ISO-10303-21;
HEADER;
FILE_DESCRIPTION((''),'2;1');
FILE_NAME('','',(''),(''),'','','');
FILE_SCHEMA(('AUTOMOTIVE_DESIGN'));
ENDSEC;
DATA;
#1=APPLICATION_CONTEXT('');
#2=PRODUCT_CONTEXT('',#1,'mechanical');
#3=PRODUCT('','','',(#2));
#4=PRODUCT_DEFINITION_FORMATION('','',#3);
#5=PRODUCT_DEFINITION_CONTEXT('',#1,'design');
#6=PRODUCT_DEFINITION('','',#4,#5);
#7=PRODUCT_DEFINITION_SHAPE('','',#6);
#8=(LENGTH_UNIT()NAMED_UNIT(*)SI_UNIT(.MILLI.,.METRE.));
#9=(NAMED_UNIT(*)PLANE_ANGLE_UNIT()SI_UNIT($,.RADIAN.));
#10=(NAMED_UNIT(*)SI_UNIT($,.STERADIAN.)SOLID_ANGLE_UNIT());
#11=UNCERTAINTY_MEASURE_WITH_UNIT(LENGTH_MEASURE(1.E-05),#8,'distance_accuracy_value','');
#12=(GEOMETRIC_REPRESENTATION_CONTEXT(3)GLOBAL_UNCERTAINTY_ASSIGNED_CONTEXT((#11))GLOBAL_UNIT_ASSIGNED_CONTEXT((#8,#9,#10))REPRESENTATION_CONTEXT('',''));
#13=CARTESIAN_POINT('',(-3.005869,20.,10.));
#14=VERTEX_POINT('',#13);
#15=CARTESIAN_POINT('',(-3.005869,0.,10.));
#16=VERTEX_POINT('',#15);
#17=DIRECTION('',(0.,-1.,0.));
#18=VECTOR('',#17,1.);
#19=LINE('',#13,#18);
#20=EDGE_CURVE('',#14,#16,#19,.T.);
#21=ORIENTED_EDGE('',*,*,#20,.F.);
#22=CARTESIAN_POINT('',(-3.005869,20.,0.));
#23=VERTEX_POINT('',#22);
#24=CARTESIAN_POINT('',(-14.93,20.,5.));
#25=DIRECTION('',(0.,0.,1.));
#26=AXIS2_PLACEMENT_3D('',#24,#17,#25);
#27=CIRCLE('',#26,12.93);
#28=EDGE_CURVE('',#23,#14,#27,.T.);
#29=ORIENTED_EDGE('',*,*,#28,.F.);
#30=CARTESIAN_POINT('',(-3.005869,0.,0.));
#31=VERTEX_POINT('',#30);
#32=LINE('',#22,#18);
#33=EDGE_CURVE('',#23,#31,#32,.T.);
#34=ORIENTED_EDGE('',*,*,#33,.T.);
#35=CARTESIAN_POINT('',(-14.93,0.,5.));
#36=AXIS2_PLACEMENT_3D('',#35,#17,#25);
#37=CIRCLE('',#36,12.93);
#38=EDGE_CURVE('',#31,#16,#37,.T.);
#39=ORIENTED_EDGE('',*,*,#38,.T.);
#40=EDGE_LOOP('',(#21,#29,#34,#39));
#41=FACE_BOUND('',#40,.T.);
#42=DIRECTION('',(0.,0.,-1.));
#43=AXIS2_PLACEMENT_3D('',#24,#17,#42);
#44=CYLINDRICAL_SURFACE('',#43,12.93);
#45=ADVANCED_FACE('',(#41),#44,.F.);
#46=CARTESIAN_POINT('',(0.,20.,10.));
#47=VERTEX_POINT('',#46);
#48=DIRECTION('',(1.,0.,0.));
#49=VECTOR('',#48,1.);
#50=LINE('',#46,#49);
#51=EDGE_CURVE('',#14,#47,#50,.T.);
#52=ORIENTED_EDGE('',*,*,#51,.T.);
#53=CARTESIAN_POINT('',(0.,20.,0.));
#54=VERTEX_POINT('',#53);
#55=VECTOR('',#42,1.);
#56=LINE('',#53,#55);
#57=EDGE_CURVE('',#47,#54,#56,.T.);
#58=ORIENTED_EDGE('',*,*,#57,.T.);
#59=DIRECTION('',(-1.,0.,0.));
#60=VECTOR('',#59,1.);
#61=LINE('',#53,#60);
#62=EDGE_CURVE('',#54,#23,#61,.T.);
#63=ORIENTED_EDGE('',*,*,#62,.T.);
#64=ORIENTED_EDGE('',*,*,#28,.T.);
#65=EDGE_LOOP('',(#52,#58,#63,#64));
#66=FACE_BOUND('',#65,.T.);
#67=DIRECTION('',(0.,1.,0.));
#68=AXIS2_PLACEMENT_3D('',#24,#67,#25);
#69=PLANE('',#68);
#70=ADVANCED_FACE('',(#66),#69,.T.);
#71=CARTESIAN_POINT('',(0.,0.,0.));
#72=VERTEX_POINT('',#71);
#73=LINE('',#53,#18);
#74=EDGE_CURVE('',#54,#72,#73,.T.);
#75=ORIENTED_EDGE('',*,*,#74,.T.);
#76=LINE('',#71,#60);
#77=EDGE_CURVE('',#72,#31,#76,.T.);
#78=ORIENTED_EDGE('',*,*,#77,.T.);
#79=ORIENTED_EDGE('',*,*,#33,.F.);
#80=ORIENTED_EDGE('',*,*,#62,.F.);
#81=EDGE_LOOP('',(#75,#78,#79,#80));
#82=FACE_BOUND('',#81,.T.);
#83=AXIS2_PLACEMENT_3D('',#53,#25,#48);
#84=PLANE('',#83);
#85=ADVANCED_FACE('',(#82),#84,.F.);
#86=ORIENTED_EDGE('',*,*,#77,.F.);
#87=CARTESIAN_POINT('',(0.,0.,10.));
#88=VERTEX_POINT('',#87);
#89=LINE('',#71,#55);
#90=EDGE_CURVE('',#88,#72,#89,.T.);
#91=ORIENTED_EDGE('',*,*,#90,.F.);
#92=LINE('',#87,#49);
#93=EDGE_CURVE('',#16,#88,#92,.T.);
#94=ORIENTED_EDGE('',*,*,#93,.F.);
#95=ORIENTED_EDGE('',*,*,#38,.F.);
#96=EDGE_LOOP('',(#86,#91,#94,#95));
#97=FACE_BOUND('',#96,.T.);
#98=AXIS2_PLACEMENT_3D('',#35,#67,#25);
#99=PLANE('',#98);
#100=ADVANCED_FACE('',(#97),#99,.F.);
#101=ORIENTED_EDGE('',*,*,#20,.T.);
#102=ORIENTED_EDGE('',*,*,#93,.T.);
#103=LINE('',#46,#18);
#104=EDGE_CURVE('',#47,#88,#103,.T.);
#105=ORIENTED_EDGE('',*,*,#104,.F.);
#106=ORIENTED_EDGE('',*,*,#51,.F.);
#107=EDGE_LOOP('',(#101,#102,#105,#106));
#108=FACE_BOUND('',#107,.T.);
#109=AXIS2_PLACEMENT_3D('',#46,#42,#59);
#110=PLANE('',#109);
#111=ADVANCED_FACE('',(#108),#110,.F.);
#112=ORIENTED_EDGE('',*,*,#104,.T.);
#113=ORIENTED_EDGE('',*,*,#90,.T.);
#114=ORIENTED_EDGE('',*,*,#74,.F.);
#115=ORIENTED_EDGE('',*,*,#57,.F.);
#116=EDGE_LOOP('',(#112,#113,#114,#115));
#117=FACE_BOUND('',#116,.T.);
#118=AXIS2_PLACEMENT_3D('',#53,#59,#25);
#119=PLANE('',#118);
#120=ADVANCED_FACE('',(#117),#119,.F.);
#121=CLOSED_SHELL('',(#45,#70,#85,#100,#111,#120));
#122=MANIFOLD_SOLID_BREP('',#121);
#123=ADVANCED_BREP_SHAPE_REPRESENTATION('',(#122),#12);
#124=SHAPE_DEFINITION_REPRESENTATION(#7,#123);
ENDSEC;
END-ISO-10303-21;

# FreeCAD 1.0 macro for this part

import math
import FreeCAD as App
import Part
import Sketcher

V = App.Vector
Q = App.Units.Quantity

doc = App.newDocument("Part")
params = doc.addObject("Spreadsheet::Sheet", "Params")
for row, (alias, value) in enumerate([
    ("sketch1_height", "10 mm"),
    ("sketch1_radius", "12.93 mm"),
    ("pad1_length", "20 mm"),
], start=1):
    params.set(f"A{row}", alias)
    params.set(f"B{row}", "=" + value)
    params.setAlias(f"B{row}", alias)

body = doc.addObject("PartDesign::Body", "Body")

sketch1 = doc.addObject("Sketcher::SketchObject", "Sketch")
body.addObject(sketch1)
sketch1.AttachmentSupport = (doc.XZ_Plane, [""])
sketch1.MapMode = "FlatFace"
sketch1.addGeometry(Part.LineSegment(V(0, 10, 0), V(0, 0, 0)), False)
sketch1.addGeometry(Part.LineSegment(V(0, 0, 0), V(-3, 0, 0)), False)
sketch1.addGeometry(Part.ArcOfCircle(Part.Circle(V(-14.9, 5, 0), V(0, 0, 1), 12.9), math.radians(-23), math.radians(23)), False)
sketch1.addGeometry(Part.LineSegment(V(-3, 10, 0), V(0, 10, 0)), False)
sketch1.addConstraint(Sketcher.Constraint("Coincident", 0, 2, 1, 1))
sketch1.addConstraint(Sketcher.Constraint("Coincident", 1, 2, 2, 1))
sketch1.addConstraint(Sketcher.Constraint("Coincident", 2, 2, 3, 1))
sketch1.addConstraint(Sketcher.Constraint("Coincident", 3, 2, 0, 1))
sketch1.addConstraint(Sketcher.Constraint("Vertical", 0))
sketch1.addConstraint(Sketcher.Constraint("Horizontal", 1))
sketch1.addConstraint(Sketcher.Constraint("Horizontal", 3))
sketch1.addConstraint(Sketcher.Constraint("Coincident", 0, 2, -1, 1))
sketch1.addConstraint(Sketcher.Constraint("Vertical", 1, 2, 2, 2))
sketch1.addConstraint(Sketcher.Constraint("DistanceY", 0, 2, 0, 1, Q("10 mm")))
sketch1.addConstraint(Sketcher.Constraint("Radius", 2, Q("12.93 mm")))
sketch1.addConstraint(Sketcher.Constraint("DistanceX", 2, 3, -1, 1, Q("14.93 mm")))
sketch1.setExpression("Constraints[9]", "Params.sketch1_height")
sketch1.setExpression("Constraints[10]", "Params.sketch1_radius")
pad1 = doc.addObject("PartDesign::Pad", "Pad")
body.addObject(pad1)
pad1.Profile = sketch1
pad1.setExpression("Length", "Params.pad1_length")
pad1.Reversed = True

doc.recompute()
